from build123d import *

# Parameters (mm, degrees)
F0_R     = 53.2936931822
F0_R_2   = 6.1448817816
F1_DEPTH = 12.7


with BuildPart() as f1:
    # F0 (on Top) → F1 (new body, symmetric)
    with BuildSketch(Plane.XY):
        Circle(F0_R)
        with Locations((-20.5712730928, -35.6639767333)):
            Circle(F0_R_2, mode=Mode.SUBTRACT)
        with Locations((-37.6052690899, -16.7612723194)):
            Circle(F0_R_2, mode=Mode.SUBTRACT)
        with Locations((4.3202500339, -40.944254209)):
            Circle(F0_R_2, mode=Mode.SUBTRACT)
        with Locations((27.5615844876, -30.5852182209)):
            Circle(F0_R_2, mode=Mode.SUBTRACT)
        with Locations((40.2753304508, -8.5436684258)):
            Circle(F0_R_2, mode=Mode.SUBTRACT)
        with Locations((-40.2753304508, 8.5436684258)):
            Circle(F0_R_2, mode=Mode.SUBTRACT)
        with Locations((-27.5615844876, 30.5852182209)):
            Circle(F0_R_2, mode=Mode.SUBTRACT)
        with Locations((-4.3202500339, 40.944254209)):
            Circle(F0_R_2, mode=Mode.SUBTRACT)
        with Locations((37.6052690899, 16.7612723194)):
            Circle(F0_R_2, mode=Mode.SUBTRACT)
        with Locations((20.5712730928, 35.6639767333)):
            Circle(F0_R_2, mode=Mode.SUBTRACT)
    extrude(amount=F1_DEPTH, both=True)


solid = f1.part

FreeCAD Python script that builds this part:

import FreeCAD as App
import Part
import Sketcher

V = App.Vector
Q = App.Units.Quantity

doc = App.newDocument("Part")
params = doc.addObject("Spreadsheet::Sheet", "Params")
for row, (alias, value) in enumerate([
    ("pad1_length", "1 in"),
], start=1):
    params.set(f"A{row}", alias)
    params.set(f"B{row}", "=" + value)
    params.setAlias(f"B{row}", alias)

body = doc.addObject("PartDesign::Body", "Body")

# Sketch on XY plane
sketch1 = body.newObject("Sketcher::SketchObject", "Sketch")
sketch1.AttachmentSupport = (doc.getObject("XY_Plane"), [""])
sketch1.MapMode = "FlatFace"
sketch1.addGeometry([
    Part.Circle(V(0, 0, 0), V(0, 0, 1), 53.293693),  # 0
    Part.Circle(V(-20.571273, -35.663977, 0), V(0, 0, 1), 6.144882),  # 1
    Part.Circle(V(-37.605269, -16.761272, 0), V(0, 0, 1), 6.144882),  # 2
    Part.Circle(V(4.32025, -40.944254, 0), V(0, 0, 1), 6.144882),  # 3
    Part.Circle(V(27.561584, -30.585218, 0), V(0, 0, 1), 6.144882),  # 4
    Part.Circle(V(40.27533, -8.543668, 0), V(0, 0, 1), 6.144882),  # 5
    Part.Circle(V(-40.27533, 8.543668, 0), V(0, 0, 1), 6.144882),  # 6
    Part.Circle(V(-27.561584, 30.585218, 0), V(0, 0, 1), 6.144882),  # 7
    Part.Circle(V(-4.32025, 40.944254, 0), V(0, 0, 1), 6.144882),  # 8
    Part.Circle(V(37.605269, 16.761272, 0), V(0, 0, 1), 6.144882),  # 9
    Part.Circle(V(20.571273, 35.663977, 0), V(0, 0, 1), 6.144882),  # 10
], False)
sketch1.addConstraint([
    Sketcher.Constraint("Coincident", 0, 3, -1, 1),
    Sketcher.Constraint("Equal", 1, 2),
    Sketcher.Constraint("Equal", 2, 3),
    Sketcher.Constraint("Equal", 3, 4),
    Sketcher.Constraint("Equal", 4, 5),
    Sketcher.Constraint("Equal", 5, 6),
    Sketcher.Constraint("Equal", 6, 7),
    Sketcher.Constraint("Equal", 7, 8),
    Sketcher.Constraint("Equal", 8, 9),
    Sketcher.Constraint("Equal", 9, 10),
    Sketcher.Constraint("Symmetric", 5, 3, 6, 3, -1, 1),
    Sketcher.Constraint("Symmetric", 4, 3, 7, 3, -1, 1),
    Sketcher.Constraint("Symmetric", 3, 3, 8, 3, -1, 1),
    Sketcher.Constraint("Symmetric", 2, 3, 9, 3, -1, 1),
    Sketcher.Constraint("Symmetric", 1, 3, 10, 3, -1, 1),
    Sketcher.Constraint("Diameter", 0, Q("106.587386 mm")),
    Sketcher.Constraint("Diameter", 1, Q("12.289764 mm")),
    Sketcher.Constraint("DistanceX", 2, 3, 5, 3, Q("77.8806 mm")),
    Sketcher.Constraint("DistanceX", 2, 3, -1, 1, Q("37.605269 mm")),
    Sketcher.Constraint("DistanceX", -1, 1, 3, 3, Q("4.32025 mm")),
    Sketcher.Constraint("DistanceY", 4, 3, -1, 1, Q("30.585218 mm")),
    Sketcher.Constraint("DistanceY", 5, 3, -1, 1, Q("8.543668 mm")),
    Sketcher.Constraint("DistanceY", 3, 3, 2, 3, Q("24.182982 mm")),
    Sketcher.Constraint("DistanceY", 1, 3, 4, 3, Q("5.078759 mm")),
    Sketcher.Constraint("DistanceY", 2, 3, 6, 3, Q("25.304941 mm")),
    Sketcher.Constraint("DistanceX", 7, 3, 1, 3, Q("6.990311 mm")),
    Sketcher.Constraint("DistanceX", 1, 3, -1, 1, Q("20.571273 mm")),
])
pad1 = body.newObject("PartDesign::Pad", "Pad")
pad1.Profile = sketch1
pad1.setExpression("Length", "Params.pad1_length")
pad1.Midplane = True

doc.recompute()
